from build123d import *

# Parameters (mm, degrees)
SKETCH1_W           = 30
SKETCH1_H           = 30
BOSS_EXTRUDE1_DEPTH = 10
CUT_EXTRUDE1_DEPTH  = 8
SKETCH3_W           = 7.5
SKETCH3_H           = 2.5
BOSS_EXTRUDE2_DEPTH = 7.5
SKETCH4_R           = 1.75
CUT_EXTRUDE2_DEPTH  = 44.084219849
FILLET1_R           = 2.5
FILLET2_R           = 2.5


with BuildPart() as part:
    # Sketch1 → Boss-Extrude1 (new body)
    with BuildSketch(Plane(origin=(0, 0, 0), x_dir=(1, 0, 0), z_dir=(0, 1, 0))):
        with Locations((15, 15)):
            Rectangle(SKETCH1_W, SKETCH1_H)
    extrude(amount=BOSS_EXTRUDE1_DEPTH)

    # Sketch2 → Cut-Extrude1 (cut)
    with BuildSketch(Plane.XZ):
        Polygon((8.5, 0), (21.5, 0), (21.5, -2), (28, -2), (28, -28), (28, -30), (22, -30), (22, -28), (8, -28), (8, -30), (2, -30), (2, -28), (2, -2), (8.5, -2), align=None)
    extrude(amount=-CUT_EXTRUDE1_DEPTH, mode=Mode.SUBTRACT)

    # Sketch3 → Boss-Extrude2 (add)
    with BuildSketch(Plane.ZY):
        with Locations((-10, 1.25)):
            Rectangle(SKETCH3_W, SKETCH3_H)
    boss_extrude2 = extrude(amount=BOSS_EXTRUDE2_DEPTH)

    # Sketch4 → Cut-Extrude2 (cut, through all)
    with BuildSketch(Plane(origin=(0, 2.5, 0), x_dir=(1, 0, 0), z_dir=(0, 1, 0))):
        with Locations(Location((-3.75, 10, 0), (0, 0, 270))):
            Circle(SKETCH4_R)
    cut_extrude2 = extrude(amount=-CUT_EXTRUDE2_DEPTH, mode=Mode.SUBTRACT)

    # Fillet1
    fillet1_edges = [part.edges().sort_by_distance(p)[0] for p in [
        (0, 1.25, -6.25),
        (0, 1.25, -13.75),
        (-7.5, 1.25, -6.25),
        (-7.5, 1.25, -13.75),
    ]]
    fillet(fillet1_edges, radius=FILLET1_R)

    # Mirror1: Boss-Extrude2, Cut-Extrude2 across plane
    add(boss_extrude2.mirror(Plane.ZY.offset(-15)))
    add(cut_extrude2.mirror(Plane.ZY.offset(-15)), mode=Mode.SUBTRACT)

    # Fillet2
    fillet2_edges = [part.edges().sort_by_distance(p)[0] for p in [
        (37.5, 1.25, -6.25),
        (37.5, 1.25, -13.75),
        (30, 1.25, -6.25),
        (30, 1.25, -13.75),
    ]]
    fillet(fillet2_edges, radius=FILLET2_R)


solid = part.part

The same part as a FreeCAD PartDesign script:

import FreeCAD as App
import Part
import Sketcher
from FreeCAD import Vector
Q = App.Units.Quantity


def edges_at(feature, points):
    """Names of the edges that pass closest to the given points."""
    edges = feature.Shape.Edges
    near = lambda p: min(range(len(edges)), key=lambda i: edges[i].distToShape(Part.Vertex(*p))[0])
    return sorted({f"Edge{near(p) + 1}" for p in points})

doc = App.newDocument("Part")
params = doc.addObject("Spreadsheet::Sheet", "Params")
for row, (alias, value) in enumerate([
    ("sketch1_width", "30 mm"),
    ("pad1_length", "10 mm"),
    ("sketch2_width", "13 mm"),
    ("sketch2_width2", "6 mm"),
    ("sketch2_width3", "14 mm"),
    ("sketch2_height", "2 mm"),
    ("sketch2_height2", "28 mm"),
    ("pocket1_length", "8 mm"),
    ("sketch3_width", "2.5 mm"),
    ("sketch3_height", "7.5 mm"),
    ("pad2_length", "7.5 mm"),
    ("sketch4_diameter", "3.5 mm"),
    ("fillet_radius", "2.5 mm"),
    ("fillet2_radius", "2.5 mm"),
], start=1):
    params.set(f"A{row}", alias)
    params.set(f"B{row}", "=" + value)
    params.setAlias(f"B{row}", alias)

body = doc.addObject("PartDesign::Body", "Body")

# Sketch on XZ plane
sketch1 = body.newObject("Sketcher::SketchObject", "Sketch")
sketch1.AttachmentSupport = (doc.getObject("XZ_Plane"), [""])
sketch1.MapMode = "FlatFace"
sketch1.addGeometry([
    Part.LineSegment(Vector(0, -30, 0), Vector(0, 0, 0)),
    Part.LineSegment(Vector(0, 0, 0), Vector(30, 0, 0)),
    Part.LineSegment(Vector(30, 0, 0), Vector(30, -30, 0)),
    Part.LineSegment(Vector(30, -30, 0), Vector(0, -30, 0)),
], False)
sketch1.addConstraint([
    Sketcher.Constraint("Coincident", 0, 2, 1, 1),
    Sketcher.Constraint("Coincident", 1, 2, 2, 1),
    Sketcher.Constraint("Coincident", 2, 2, 3, 1),
    Sketcher.Constraint("Coincident", 3, 2, 0, 1),
    Sketcher.Constraint("Vertical", 0),
    Sketcher.Constraint("Horizontal", 1),
    Sketcher.Constraint("Vertical", 2),
    Sketcher.Constraint("Horizontal", 3),
    Sketcher.Constraint("Coincident", 0, 2, -1, 1),
    Sketcher.Constraint("Equal", 3, 0),
    Sketcher.Constraint("DistanceX", 1, 1, 1, 2, Q("30 mm")),
])
sketch1.setExpression("Constraints[10]", "Params.sketch1_width")
pad1 = body.newObject("PartDesign::Pad", "Pad")
pad1.Profile = sketch1
pad1.setExpression("Length", "Params.pad1_length")
pad1.Reversed = True

# Sketch on XZ plane
sketch2 = body.newObject("Sketcher::SketchObject", "Sketch001")
sketch2.AttachmentSupport = (doc.getObject("XZ_Plane"), [""])
sketch2.MapMode = "FlatFace"
sketch2.addGeometry([
    Part.LineSegment(Vector(21.5, 0, 0), Vector(8.5, 0, 0)),  # 0
    Part.LineSegment(Vector(8.5, 0, 0), Vector(8.5, -2, 0)),  # 1
    Part.LineSegment(Vector(8.5, -2, 0), Vector(2, -2, 0)),  # 2
    Part.LineSegment(Vector(2, -2, 0), Vector(2, -30, 0)),  # 3
    Part.LineSegment(Vector(2, -30, 0), Vector(8, -30, 0)),  # 4
    Part.LineSegment(Vector(8, -30, 0), Vector(8, -28, 0)),  # 5
    Part.LineSegment(Vector(8, -28, 0), Vector(22, -28, 0)),  # 6
    Part.LineSegment(Vector(22, -28, 0), Vector(22, -30, 0)),  # 7
    Part.LineSegment(Vector(22, -30, 0), Vector(28, -30, 0)),  # 8
    Part.LineSegment(Vector(28, -30, 0), Vector(28, -2, 0)),  # 9
    Part.LineSegment(Vector(28, -2, 0), Vector(21.5, -2, 0)),  # 10
    Part.LineSegment(Vector(21.5, -2, 0), Vector(21.5, 0, 0)),  # 11
], False)
sketch2.addConstraint([
    Sketcher.Constraint("Coincident", 0, 2, 1, 1),
    Sketcher.Constraint("Coincident", 1, 2, 2, 1),
    Sketcher.Constraint("Coincident", 2, 2, 3, 1),
    Sketcher.Constraint("Coincident", 3, 2, 4, 1),
    Sketcher.Constraint("Coincident", 4, 2, 5, 1),
    Sketcher.Constraint("Coincident", 5, 2, 6, 1),
    Sketcher.Constraint("Coincident", 6, 2, 7, 1),
    Sketcher.Constraint("Coincident", 7, 2, 8, 1),
    Sketcher.Constraint("Coincident", 8, 2, 9, 1),
    Sketcher.Constraint("Coincident", 9, 2, 10, 1),
    Sketcher.Constraint("Coincident", 10, 2, 11, 1),
    Sketcher.Constraint("Coincident", 11, 2, 0, 1),
    Sketcher.Constraint("Horizontal", 0),
    Sketcher.Constraint("Vertical", 1),
    Sketcher.Constraint("Horizontal", 2),
    Sketcher.Constraint("Vertical", 3),
    Sketcher.Constraint("Horizontal", 4),
    Sketcher.Constraint("Vertical", 5),
    Sketcher.Constraint("Horizontal", 6),
    Sketcher.Constraint("Vertical", 7),
    Sketcher.Constraint("Horizontal", 8),
    Sketcher.Constraint("Vertical", 9),
    Sketcher.Constraint("Horizontal", 10),
    Sketcher.Constraint("Vertical", 11),
    Sketcher.Constraint("PointOnObject", 0, 2, -1),
    Sketcher.Constraint("Horizontal", 4, 2, 7, 2),
    Sketcher.Constraint("Horizontal", 2, 2, 9, 2),
    Sketcher.Constraint("Equal", 4, 8),
    Sketcher.Constraint("Equal", 2, 10),
    Sketcher.Constraint("Equal", 1, 5),
    Sketcher.Constraint("DistanceX", 0, 2, 0, 1, Q("13 mm")),
    Sketcher.Constraint("DistanceX", 4, 1, 4, 2, Q("6 mm")),
    Sketcher.Constraint("DistanceX", 6, 1, 6, 2, Q("14 mm")),
    Sketcher.Constraint("DistanceY", 1, 2, 1, 1, Q("2 mm")),
    Sketcher.Constraint("DistanceY", 3, 2, 3, 1, Q("28 mm")),
    Sketcher.Constraint("DistanceX", -1, 1, 2, 2, Q("2 mm")),
])
sketch2.setExpression("Constraints[30]", "Params.sketch2_width")
sketch2.setExpression("Constraints[31]", "Params.sketch2_width2")
sketch2.setExpression("Constraints[32]", "Params.sketch2_width3")
sketch2.setExpression("Constraints[33]", "Params.sketch2_height")
sketch2.setExpression("Constraints[34]", "Params.sketch2_height2")
pocket1 = body.newObject("PartDesign::Pocket", "Pocket")
pocket1.Profile = sketch2
pocket1.setExpression("Length", "Params.pocket1_length")

# Sketch on YZ plane
sketch3 = body.newObject("Sketcher::SketchObject", "Sketch002")
sketch3.AttachmentSupport = (doc.getObject("YZ_Plane"), [""])
sketch3.MapMode = "FlatFace"
sketch3.addGeometry([
    Part.LineSegment(Vector(2.5, -13.8, 0), Vector(0, -13.8, 0)),
    Part.LineSegment(Vector(0, -13.8, 0), Vector(0, -6.2, 0)),
    Part.LineSegment(Vector(0, -6.2, 0), Vector(2.5, -6.2, 0)),
    Part.LineSegment(Vector(2.5, -6.2, 0), Vector(2.5, -13.8, 0)),
], False)
sketch3.addConstraint([
    Sketcher.Constraint("Coincident", 0, 2, 1, 1),
    Sketcher.Constraint("Coincident", 1, 2, 2, 1),
    Sketcher.Constraint("Coincident", 2, 2, 3, 1),
    Sketcher.Constraint("Coincident", 3, 2, 0, 1),
    Sketcher.Constraint("Horizontal", 0),
    Sketcher.Constraint("Vertical", 1),
    Sketcher.Constraint("Horizontal", 2),
    Sketcher.Constraint("Vertical", 3),
    Sketcher.Constraint("PointOnObject", 0, 2, -2),
    Sketcher.Constraint("DistanceX", 0, 2, 0, 1, Q("2.5 mm")),
    Sketcher.Constraint("DistanceY", 1, 1, 1, 2, Q("7.5 mm")),
    Sketcher.Constraint("DistanceY", 0, 2, -1, 1, Q("13.75 mm")),
])
sketch3.setExpression("Constraints[9]", "Params.sketch3_width")
sketch3.setExpression("Constraints[10]", "Params.sketch3_height")
pad2 = body.newObject("PartDesign::Pad", "Pad001")
pad2.Profile = sketch3
pad2.setExpression("Length", "Params.pad2_length")
pad2.Reversed = True

# Sketch on XZ plane
sketch4 = body.newObject("Sketcher::SketchObject", "Sketch003")
sketch4.AttachmentSupport = (doc.getObject("XZ_Plane"), [""])
sketch4.MapMode = "FlatFace"
sketch4.AttachmentOffset = App.Placement(Vector(0, 0, -2.5), App.Rotation())
sketch4.addGeometry(Part.Circle(Vector(-3.8, -10, 0), Vector(0, 0, 1), 1.8), False)
sketch4.addConstraint([
    Sketcher.Constraint("Diameter", 0, Q("3.5 mm")),
    Sketcher.Constraint("DistanceY", 0, 3, -1, 1, Q("10 mm")),
    Sketcher.Constraint("DistanceX", 0, 3, -1, 1, Q("3.75 mm")),
])
sketch4.setExpression("Constraints[0]", "Params.sketch4_diameter")
pocket2 = body.newObject("PartDesign::Pocket", "Pocket001")
pocket2.Profile = sketch4
pocket2.Type = "ThroughAll"
pocket2.Reversed = True
doc.recompute()

fillet = body.newObject("PartDesign::Fillet", "Fillet")
fillet.Base = (pocket2, edges_at(pocket2, [
    (0, 1.25, -6.25),
    (0, 1.25, -13.75),
    (-7.5, 1.25, -6.25),
    (-7.5, 1.25, -13.75),
]))
fillet.setExpression("Radius", "Params.fillet_radius")
doc.recompute()

datumplane = body.newObject("PartDesign::Plane", "DatumPlane")
datumplane.AttachmentSupport = (doc.getObject("YZ_Plane"), [""])
datumplane.MapMode = "FlatFace"
datumplane.AttachmentOffset = App.Placement(Vector(0, 0, 15), App.Rotation())
mirrored = body.newObject("PartDesign::Mirrored", "Mirrored")
mirrored.Originals = [pad2, pocket2]
mirrored.MirrorPlane = (datumplane, [""])
body.Tip = mirrored
doc.recompute()

fillet2 = body.newObject("PartDesign::Fillet", "Fillet001")
fillet2.Base = (mirrored, edges_at(mirrored, [
    (37.5, 1.25, -6.25),
    (37.5, 1.25, -13.75),
    (30, 1.25, -6.25),
    (30, 1.25, -13.75),
]))
fillet2.setExpression("Radius", "Params.fillet2_radius")

doc.recompute()
